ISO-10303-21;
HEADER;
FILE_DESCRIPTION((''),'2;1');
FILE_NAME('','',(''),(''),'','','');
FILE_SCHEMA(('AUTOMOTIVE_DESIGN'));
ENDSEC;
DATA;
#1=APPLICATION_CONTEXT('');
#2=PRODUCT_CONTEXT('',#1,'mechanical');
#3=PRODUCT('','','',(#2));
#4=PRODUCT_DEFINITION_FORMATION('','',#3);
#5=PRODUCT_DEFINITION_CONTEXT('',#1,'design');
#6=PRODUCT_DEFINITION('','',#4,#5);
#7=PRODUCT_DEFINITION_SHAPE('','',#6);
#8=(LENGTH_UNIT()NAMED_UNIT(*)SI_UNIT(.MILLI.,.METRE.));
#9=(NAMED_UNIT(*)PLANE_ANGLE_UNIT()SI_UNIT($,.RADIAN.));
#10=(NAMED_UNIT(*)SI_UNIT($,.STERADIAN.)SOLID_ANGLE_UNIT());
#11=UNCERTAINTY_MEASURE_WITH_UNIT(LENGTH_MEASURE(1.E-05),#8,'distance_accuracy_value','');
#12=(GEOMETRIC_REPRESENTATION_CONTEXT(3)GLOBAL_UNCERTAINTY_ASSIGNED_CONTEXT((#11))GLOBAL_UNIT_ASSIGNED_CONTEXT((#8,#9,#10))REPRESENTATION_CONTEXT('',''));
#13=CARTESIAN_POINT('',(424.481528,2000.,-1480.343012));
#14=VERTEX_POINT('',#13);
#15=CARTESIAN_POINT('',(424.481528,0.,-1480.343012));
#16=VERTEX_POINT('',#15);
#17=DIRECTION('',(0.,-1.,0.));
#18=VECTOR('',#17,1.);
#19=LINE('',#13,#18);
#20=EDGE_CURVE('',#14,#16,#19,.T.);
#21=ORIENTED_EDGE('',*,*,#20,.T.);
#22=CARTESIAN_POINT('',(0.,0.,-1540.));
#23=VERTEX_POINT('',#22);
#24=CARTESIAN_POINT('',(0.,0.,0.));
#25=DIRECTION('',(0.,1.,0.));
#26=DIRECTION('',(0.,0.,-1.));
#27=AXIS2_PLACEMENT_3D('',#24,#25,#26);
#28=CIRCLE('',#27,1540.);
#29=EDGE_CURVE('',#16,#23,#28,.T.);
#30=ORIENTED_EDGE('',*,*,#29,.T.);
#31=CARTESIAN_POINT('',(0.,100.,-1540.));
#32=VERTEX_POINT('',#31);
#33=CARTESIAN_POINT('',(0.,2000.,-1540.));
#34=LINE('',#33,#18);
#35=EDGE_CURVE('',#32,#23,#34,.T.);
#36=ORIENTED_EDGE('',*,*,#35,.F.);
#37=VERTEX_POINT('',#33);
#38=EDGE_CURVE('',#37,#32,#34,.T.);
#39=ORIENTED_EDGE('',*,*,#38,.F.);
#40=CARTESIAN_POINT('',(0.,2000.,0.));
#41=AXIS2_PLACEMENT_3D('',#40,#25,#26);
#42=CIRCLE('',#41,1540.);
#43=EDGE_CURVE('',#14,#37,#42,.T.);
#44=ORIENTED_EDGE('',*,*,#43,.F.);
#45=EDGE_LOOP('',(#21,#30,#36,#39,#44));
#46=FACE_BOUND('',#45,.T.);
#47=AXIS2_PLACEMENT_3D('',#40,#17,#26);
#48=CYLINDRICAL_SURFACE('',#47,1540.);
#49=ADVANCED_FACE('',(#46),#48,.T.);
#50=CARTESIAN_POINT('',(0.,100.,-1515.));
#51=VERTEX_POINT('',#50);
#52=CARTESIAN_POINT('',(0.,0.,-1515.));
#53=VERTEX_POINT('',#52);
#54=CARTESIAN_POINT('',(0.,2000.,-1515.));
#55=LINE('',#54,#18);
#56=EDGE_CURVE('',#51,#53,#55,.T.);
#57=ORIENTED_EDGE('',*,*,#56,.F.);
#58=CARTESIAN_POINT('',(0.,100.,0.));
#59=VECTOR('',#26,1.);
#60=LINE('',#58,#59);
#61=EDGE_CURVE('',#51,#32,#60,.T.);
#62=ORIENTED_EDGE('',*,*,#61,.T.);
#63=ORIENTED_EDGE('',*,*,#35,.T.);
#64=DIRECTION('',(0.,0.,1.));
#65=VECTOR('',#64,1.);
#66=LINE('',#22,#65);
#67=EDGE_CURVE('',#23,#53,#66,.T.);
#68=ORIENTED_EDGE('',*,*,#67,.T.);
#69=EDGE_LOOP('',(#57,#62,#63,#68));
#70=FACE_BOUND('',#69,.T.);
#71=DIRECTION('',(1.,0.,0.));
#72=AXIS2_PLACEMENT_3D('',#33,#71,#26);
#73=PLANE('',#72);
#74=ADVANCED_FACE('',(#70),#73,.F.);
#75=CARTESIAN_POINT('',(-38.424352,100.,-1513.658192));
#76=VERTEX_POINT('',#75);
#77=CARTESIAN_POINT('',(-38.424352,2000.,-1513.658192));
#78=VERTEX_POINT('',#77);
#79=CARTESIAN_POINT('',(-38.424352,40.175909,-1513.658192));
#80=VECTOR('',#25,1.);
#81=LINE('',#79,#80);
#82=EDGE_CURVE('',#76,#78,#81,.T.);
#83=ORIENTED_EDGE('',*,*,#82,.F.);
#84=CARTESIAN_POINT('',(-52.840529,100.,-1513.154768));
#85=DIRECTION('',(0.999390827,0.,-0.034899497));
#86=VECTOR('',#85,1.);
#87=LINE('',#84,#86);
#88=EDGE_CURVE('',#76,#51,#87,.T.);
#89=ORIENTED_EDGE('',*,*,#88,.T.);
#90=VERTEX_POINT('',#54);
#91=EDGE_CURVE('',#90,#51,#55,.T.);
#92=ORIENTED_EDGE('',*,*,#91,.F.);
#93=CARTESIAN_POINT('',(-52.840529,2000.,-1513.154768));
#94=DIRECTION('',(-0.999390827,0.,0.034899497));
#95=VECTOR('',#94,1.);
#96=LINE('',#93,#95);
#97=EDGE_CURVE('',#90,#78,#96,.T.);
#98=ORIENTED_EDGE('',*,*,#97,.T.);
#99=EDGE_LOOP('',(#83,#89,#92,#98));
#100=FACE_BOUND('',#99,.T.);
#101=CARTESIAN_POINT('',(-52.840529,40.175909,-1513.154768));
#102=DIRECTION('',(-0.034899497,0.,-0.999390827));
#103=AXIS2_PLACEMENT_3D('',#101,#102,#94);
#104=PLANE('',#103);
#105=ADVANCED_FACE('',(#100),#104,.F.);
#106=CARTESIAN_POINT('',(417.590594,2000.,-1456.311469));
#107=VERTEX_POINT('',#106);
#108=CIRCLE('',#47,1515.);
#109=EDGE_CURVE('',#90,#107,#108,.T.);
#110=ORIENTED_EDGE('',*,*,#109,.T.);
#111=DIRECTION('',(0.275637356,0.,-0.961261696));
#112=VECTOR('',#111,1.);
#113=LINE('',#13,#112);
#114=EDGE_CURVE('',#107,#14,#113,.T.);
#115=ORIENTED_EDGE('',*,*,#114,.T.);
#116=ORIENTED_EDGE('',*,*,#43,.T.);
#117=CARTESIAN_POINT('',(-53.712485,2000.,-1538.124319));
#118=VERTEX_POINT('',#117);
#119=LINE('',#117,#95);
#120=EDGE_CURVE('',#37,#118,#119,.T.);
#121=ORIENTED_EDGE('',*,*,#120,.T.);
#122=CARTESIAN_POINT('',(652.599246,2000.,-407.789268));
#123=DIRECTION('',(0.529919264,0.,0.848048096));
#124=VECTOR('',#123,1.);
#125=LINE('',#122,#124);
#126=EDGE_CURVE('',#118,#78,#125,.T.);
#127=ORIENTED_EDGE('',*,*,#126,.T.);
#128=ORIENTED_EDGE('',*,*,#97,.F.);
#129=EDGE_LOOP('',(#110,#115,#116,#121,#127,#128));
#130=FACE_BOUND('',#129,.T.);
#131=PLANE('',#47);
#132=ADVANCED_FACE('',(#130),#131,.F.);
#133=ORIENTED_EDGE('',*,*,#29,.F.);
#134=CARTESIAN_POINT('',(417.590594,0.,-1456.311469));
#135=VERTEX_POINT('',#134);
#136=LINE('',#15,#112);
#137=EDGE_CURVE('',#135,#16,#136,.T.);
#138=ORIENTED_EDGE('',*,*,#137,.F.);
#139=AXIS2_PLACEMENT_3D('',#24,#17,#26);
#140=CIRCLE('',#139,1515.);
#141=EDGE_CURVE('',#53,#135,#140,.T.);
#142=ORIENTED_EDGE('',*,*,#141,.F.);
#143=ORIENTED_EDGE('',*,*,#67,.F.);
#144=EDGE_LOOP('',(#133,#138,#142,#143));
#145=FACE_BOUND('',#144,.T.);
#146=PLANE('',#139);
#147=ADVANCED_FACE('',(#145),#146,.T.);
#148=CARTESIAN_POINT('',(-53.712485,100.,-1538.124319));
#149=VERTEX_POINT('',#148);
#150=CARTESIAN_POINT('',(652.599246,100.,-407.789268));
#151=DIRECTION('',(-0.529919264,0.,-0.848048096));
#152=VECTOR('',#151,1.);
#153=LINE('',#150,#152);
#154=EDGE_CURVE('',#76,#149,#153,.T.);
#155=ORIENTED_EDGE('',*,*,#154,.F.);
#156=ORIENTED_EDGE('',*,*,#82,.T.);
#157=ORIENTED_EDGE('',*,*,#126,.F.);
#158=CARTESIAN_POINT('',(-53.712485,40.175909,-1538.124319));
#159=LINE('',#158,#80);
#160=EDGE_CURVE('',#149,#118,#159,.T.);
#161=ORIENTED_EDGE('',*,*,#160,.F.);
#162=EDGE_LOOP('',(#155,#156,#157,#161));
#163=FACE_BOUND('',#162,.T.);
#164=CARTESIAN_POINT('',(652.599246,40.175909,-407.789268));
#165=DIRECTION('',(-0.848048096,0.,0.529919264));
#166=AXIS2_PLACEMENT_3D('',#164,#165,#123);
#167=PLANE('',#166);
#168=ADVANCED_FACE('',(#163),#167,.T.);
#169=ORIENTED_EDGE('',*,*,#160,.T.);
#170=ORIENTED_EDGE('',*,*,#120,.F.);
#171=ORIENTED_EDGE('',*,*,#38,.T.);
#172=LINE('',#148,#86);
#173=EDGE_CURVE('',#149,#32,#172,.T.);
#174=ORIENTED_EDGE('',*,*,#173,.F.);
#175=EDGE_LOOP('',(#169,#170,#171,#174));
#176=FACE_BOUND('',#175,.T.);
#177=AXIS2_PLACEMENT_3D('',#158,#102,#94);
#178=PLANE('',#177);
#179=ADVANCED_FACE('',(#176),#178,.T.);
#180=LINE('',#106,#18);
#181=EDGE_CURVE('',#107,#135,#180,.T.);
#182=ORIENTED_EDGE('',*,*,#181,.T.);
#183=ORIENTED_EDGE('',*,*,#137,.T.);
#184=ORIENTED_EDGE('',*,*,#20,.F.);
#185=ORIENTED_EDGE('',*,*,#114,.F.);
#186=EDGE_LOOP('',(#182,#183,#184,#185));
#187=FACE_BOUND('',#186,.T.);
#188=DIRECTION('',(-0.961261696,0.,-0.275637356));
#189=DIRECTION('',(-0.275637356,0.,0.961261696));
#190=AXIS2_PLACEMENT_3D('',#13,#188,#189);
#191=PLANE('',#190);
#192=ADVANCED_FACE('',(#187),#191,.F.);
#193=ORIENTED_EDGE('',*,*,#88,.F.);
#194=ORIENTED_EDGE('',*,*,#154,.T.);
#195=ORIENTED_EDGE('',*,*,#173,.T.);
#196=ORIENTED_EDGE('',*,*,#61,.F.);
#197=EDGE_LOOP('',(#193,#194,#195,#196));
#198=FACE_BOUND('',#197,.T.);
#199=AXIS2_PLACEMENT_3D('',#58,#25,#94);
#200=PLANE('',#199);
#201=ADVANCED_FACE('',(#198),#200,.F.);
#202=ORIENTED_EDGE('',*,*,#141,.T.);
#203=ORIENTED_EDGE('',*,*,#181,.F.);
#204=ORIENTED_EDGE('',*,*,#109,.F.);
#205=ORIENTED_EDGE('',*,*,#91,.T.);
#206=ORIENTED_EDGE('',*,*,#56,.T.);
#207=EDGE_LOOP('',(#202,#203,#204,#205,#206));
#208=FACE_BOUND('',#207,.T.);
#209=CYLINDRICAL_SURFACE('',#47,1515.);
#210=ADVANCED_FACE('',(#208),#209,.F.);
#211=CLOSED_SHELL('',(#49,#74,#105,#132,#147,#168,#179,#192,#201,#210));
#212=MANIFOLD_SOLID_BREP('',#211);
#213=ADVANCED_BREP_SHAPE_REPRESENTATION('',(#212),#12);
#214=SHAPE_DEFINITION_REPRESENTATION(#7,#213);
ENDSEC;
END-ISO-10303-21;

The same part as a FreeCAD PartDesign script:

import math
import FreeCAD as App
import Part
import Sketcher
Q = App.Units.Quantity


def add_polygon(sketch, points):
    """Adds a closed chain of lines whose ends are joined by coincident constraints."""
    first, n = sketch.GeometryCount, len(points)
    for a, b in zip(points, points[1:] + points[:1]):
        sketch.addGeometry(Part.LineSegment(App.Vector(*a, 0), App.Vector(*b, 0)), False)
    for i in range(n):
        sketch.addConstraint(Sketcher.Constraint("Coincident", first + i, 2, first + (i + 1) % n, 1))

doc = App.newDocument("Part")
body = doc.addObject("PartDesign::Body", "Body")

# Sketch on XZ plane
sketch1 = body.newObject("Sketcher::SketchObject", "Sketch")
sketch1.AttachmentSupport = (doc.getObject("XZ_Plane"), [""])
sketch1.MapMode = "FlatFace"
sketch1.addGeometry(Part.LineSegment(App.Vector(0, -1540, 0), App.Vector(0, -1515, 0)), False)
sketch1.addGeometry(Part.ArcOfCircle(Part.Circle(App.Vector(0, 0, 0), App.Vector(0, 0, 1), 1515), math.radians(-90), math.radians(-74)), False)
sketch1.addGeometry(Part.LineSegment(App.Vector(418, -1456, 0), App.Vector(424, -1480, 0)), False)
sketch1.addGeometry(Part.ArcOfCircle(Part.Circle(App.Vector(0, 0, 0), App.Vector(0, 0, 1), 1540), math.radians(-90), math.radians(-74)), False)
sketch1.addConstraint(Sketcher.Constraint("Coincident", 0, 2, 1, 1))
sketch1.addConstraint(Sketcher.Constraint("Coincident", 1, 2, 2, 1))
sketch1.addConstraint(Sketcher.Constraint("Coincident", 2, 2, 3, 2))
sketch1.addConstraint(Sketcher.Constraint("Coincident", 3, 1, 0, 1))
sketch1.addConstraint(Sketcher.Constraint("Vertical", 0))
sketch1.addConstraint(Sketcher.Constraint("Coincident", 1, 3, -1, 1))
sketch1.addConstraint(Sketcher.Constraint("Coincident", 3, 3, -1, 1))
sketch1.addConstraint(Sketcher.Constraint("PointOnObject", 0, 2, -2))
sketch1.addConstraint(Sketcher.Constraint("Radius", 1, 1515.0))
sketch1.addConstraint(Sketcher.Constraint("Radius", 3, 1540.0))
sketch1.addConstraint(Sketcher.Constraint("Angle", 2, Q("-74 deg")))
sketch1.addConstraint(Sketcher.Constraint("DistanceY", 2, 2, -1, 1, 1480.343012))
pad1 = body.newObject("PartDesign::Pad", "Pad")
pad1.Profile = sketch1
pad1.Length = 2000
pad1.Reversed = True

# Sketch on XZ plane
sketch2 = body.newObject("Sketcher::SketchObject", "Sketch001")
sketch2.AttachmentSupport = (doc.getObject("XZ_Plane"), [""])
sketch2.MapMode = "FlatFace"
sketch2.AttachmentOffset = App.Placement(App.Vector(0, 0, -2000), App.Rotation())
add_polygon(sketch2, [(-38, -1514), (0, -1515), (0, -1540), (-54, -1538)])  # lines 0-3
sketch2.addConstraint(Sketcher.Constraint("Vertical", 1))
sketch2.addConstraint(Sketcher.Constraint("PointOnObject", 0, 2, -2))
sketch2.addConstraint(Sketcher.Constraint("Parallel", 0, 2))
sketch2.addConstraint(Sketcher.Constraint("DistanceY", 1, 2, 1, 1, 25.0))
sketch2.addConstraint(Sketcher.Constraint("Angle", 0, Q("-2 deg")))
sketch2.addConstraint(Sketcher.Constraint("Angle", 3, Q("58 deg")))
sketch2.addConstraint(Sketcher.Constraint("DistanceY", 0, 2, -1, 1, 1515.0))
sketch2.addConstraint(Sketcher.Constraint("DistanceY", 2, 2, -1, 1, 1538.124319))
pad2 = body.newObject("PartDesign::Pad", "Pad001")
pad2.Profile = sketch2
pad2.Length = 1900

doc.recompute()
